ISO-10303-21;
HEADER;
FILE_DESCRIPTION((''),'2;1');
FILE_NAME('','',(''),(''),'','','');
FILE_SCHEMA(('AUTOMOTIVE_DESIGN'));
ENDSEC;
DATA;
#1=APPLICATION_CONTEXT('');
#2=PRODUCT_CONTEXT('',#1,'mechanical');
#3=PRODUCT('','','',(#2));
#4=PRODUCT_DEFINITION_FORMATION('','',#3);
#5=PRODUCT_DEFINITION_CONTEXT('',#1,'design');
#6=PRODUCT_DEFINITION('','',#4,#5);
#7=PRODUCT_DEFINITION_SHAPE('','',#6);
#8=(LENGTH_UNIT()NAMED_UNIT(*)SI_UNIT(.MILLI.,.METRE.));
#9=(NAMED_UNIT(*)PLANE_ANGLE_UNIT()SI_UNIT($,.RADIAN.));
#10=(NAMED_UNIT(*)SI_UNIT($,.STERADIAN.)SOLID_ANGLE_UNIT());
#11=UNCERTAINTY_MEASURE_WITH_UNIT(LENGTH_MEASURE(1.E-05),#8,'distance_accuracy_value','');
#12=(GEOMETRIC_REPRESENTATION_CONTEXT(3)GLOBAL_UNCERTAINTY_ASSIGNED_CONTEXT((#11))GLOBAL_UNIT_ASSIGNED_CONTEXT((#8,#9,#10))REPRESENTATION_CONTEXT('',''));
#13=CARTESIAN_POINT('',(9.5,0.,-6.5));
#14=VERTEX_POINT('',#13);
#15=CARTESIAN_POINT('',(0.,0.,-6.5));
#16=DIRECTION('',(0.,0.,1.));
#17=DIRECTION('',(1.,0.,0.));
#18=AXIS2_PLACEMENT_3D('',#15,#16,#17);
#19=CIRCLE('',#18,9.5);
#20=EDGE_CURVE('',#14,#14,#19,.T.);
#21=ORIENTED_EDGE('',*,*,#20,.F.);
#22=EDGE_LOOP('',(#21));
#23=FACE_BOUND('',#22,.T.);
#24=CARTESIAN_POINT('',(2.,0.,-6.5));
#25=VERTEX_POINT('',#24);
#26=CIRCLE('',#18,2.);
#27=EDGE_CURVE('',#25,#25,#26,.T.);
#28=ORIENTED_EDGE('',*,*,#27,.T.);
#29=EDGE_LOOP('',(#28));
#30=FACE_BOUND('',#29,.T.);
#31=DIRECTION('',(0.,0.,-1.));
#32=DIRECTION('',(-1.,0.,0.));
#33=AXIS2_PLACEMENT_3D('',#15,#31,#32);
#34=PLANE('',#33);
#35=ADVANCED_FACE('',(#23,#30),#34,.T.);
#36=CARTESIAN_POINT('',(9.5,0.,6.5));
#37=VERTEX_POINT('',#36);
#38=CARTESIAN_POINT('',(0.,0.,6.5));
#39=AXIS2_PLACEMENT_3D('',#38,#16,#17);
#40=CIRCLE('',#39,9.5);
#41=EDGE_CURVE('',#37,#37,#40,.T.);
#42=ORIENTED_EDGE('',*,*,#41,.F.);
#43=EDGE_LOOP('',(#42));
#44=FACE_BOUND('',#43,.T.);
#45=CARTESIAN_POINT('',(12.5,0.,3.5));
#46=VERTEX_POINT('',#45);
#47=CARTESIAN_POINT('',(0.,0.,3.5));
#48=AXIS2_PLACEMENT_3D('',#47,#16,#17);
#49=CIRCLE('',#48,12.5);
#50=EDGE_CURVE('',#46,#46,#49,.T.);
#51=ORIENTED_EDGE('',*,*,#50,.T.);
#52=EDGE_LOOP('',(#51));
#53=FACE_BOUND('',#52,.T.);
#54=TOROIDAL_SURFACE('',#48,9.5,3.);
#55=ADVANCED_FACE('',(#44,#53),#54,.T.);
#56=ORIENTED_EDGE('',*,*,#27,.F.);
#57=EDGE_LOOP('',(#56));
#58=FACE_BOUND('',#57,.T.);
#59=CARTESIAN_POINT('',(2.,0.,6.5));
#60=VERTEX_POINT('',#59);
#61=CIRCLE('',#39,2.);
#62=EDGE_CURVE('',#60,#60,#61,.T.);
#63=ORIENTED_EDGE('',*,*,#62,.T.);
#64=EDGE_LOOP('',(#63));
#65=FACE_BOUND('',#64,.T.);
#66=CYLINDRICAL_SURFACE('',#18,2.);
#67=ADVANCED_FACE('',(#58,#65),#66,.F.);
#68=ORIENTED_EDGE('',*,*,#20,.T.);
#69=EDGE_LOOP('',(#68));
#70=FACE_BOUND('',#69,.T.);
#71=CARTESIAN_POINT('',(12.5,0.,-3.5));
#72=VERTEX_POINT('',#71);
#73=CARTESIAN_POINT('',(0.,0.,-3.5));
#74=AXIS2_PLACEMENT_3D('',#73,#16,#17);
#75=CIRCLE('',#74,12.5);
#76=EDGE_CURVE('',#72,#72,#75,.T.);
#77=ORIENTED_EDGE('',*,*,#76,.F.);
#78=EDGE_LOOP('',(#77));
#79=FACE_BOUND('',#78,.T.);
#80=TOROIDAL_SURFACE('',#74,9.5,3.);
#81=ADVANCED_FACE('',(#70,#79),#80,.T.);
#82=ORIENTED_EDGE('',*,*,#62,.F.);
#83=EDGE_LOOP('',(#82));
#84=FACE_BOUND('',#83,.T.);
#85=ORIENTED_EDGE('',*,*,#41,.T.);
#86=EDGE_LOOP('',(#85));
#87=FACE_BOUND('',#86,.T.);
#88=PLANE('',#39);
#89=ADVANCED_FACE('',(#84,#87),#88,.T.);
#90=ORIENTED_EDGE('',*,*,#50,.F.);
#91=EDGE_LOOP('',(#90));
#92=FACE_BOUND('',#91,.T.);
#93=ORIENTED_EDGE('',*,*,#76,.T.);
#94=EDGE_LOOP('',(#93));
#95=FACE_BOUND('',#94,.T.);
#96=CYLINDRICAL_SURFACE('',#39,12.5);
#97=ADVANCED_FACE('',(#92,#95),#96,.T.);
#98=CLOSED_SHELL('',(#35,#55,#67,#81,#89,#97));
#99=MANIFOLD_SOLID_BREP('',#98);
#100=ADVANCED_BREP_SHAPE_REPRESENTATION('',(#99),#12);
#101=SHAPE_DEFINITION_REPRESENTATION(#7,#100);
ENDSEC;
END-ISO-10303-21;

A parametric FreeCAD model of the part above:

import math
import FreeCAD as App
import Part
import Sketcher
Q = App.Units.Quantity

doc = App.newDocument("Part")
params = doc.addObject("Spreadsheet::Sheet", "Params")
for row, (alias, value) in enumerate([
    ("sketch1_radius", "3 mm"),
    ("sketch1_height", "7 mm"),
    ("sketch1_width", "9.5 mm"),
    ("revolution_angle", "360 deg"),
    ("sketch2_diameter", "4 mm"),
], start=1):
    params.set(f"A{row}", alias)
    params.set(f"B{row}", "=" + value)
    params.setAlias(f"B{row}", alias)

body = doc.addObject("PartDesign::Body", "Body")

sketch1 = body.newObject("Sketcher::SketchObject", "Sketch")
sketch1.AttachmentSupport = (doc.getObject("XZ_Plane"), [""])
sketch1.MapMode = "FlatFace"
sketch1.addGeometry([
    Part.LineSegment(App.Vector(0, 6.5, 0), App.Vector(9.5, 6.5, 0)),
    Part.ArcOfCircle(Part.Circle(App.Vector(9.5, 3.5, 0), App.Vector(0, 0, 1), 3), math.radians(0), math.radians(90)),
    Part.LineSegment(App.Vector(12.5, 3.5, 0), App.Vector(12.5, -3.5, 0)),
    Part.ArcOfCircle(Part.Circle(App.Vector(9.5, -3.5, 0), App.Vector(0, 0, 1), 3), math.radians(-90), math.radians(0)),
    Part.LineSegment(App.Vector(9.5, -6.5, 0), App.Vector(0, -6.5, 0)),
    Part.LineSegment(App.Vector(0, -6.5, 0), App.Vector(0, 6.5, 0)),
], False)
sketch1.addConstraint([
    Sketcher.Constraint("Tangent", 0, 2, 1, 2),
    Sketcher.Constraint("Tangent", 1, 1, 2, 1),
    Sketcher.Constraint("Tangent", 2, 2, 3, 2),
    Sketcher.Constraint("Tangent", 3, 1, 4, 1),
    Sketcher.Constraint("Coincident", 4, 2, 5, 1),
    Sketcher.Constraint("Coincident", 5, 2, 0, 1),
    Sketcher.Constraint("Horizontal", 0),
    Sketcher.Constraint("Vertical", 2),
    Sketcher.Constraint("Horizontal", 4),
    Sketcher.Constraint("Vertical", 5),
    Sketcher.Constraint("Equal", 1, 3),
    Sketcher.Constraint("Symmetric", 4, 2, 5, 2, -1, 1),
    Sketcher.Constraint("Radius", 1, Q("3 mm")),
    Sketcher.Constraint("DistanceY", 2, 2, 2, 1, Q("7 mm")),
    Sketcher.Constraint("DistanceX", 0, 1, 0, 2, Q("9.5 mm")),
])
sketch1.setExpression("Constraints[12]", "Params.sketch1_radius")
sketch1.setExpression("Constraints[13]", "Params.sketch1_height")
sketch1.setExpression("Constraints[14]", "Params.sketch1_width")
revolution = body.newObject("PartDesign::Revolution", "Revolution")
revolution.Profile = sketch1
revolution.ReferenceAxis = (sketch1, ["V_Axis"])
revolution.setExpression("Angle", "Params.revolution_angle")

sketch2 = body.newObject("Sketcher::SketchObject", "Sketch001")
sketch2.AttachmentSupport = (doc.getObject("XY_Plane"), [""])
sketch2.MapMode = "FlatFace"
sketch2.AttachmentOffset = App.Placement(App.Vector(0, 0, 6.5), App.Rotation())
sketch2.addGeometry(Part.Circle(App.Vector(0, 0, 0), App.Vector(0, 0, 1), 2), False)
sketch2.addConstraint([
    Sketcher.Constraint("Coincident", 0, 3, -1, 1),
    Sketcher.Constraint("Diameter", 0, Q("4 mm")),
])
sketch2.setExpression("Constraints[1]", "Params.sketch2_diameter")
pocket1 = body.newObject("PartDesign::Pocket", "Pocket")
pocket1.Profile = sketch2
pocket1.Type = "ThroughAll"
pocket1.Midplane = True

doc.recompute()
